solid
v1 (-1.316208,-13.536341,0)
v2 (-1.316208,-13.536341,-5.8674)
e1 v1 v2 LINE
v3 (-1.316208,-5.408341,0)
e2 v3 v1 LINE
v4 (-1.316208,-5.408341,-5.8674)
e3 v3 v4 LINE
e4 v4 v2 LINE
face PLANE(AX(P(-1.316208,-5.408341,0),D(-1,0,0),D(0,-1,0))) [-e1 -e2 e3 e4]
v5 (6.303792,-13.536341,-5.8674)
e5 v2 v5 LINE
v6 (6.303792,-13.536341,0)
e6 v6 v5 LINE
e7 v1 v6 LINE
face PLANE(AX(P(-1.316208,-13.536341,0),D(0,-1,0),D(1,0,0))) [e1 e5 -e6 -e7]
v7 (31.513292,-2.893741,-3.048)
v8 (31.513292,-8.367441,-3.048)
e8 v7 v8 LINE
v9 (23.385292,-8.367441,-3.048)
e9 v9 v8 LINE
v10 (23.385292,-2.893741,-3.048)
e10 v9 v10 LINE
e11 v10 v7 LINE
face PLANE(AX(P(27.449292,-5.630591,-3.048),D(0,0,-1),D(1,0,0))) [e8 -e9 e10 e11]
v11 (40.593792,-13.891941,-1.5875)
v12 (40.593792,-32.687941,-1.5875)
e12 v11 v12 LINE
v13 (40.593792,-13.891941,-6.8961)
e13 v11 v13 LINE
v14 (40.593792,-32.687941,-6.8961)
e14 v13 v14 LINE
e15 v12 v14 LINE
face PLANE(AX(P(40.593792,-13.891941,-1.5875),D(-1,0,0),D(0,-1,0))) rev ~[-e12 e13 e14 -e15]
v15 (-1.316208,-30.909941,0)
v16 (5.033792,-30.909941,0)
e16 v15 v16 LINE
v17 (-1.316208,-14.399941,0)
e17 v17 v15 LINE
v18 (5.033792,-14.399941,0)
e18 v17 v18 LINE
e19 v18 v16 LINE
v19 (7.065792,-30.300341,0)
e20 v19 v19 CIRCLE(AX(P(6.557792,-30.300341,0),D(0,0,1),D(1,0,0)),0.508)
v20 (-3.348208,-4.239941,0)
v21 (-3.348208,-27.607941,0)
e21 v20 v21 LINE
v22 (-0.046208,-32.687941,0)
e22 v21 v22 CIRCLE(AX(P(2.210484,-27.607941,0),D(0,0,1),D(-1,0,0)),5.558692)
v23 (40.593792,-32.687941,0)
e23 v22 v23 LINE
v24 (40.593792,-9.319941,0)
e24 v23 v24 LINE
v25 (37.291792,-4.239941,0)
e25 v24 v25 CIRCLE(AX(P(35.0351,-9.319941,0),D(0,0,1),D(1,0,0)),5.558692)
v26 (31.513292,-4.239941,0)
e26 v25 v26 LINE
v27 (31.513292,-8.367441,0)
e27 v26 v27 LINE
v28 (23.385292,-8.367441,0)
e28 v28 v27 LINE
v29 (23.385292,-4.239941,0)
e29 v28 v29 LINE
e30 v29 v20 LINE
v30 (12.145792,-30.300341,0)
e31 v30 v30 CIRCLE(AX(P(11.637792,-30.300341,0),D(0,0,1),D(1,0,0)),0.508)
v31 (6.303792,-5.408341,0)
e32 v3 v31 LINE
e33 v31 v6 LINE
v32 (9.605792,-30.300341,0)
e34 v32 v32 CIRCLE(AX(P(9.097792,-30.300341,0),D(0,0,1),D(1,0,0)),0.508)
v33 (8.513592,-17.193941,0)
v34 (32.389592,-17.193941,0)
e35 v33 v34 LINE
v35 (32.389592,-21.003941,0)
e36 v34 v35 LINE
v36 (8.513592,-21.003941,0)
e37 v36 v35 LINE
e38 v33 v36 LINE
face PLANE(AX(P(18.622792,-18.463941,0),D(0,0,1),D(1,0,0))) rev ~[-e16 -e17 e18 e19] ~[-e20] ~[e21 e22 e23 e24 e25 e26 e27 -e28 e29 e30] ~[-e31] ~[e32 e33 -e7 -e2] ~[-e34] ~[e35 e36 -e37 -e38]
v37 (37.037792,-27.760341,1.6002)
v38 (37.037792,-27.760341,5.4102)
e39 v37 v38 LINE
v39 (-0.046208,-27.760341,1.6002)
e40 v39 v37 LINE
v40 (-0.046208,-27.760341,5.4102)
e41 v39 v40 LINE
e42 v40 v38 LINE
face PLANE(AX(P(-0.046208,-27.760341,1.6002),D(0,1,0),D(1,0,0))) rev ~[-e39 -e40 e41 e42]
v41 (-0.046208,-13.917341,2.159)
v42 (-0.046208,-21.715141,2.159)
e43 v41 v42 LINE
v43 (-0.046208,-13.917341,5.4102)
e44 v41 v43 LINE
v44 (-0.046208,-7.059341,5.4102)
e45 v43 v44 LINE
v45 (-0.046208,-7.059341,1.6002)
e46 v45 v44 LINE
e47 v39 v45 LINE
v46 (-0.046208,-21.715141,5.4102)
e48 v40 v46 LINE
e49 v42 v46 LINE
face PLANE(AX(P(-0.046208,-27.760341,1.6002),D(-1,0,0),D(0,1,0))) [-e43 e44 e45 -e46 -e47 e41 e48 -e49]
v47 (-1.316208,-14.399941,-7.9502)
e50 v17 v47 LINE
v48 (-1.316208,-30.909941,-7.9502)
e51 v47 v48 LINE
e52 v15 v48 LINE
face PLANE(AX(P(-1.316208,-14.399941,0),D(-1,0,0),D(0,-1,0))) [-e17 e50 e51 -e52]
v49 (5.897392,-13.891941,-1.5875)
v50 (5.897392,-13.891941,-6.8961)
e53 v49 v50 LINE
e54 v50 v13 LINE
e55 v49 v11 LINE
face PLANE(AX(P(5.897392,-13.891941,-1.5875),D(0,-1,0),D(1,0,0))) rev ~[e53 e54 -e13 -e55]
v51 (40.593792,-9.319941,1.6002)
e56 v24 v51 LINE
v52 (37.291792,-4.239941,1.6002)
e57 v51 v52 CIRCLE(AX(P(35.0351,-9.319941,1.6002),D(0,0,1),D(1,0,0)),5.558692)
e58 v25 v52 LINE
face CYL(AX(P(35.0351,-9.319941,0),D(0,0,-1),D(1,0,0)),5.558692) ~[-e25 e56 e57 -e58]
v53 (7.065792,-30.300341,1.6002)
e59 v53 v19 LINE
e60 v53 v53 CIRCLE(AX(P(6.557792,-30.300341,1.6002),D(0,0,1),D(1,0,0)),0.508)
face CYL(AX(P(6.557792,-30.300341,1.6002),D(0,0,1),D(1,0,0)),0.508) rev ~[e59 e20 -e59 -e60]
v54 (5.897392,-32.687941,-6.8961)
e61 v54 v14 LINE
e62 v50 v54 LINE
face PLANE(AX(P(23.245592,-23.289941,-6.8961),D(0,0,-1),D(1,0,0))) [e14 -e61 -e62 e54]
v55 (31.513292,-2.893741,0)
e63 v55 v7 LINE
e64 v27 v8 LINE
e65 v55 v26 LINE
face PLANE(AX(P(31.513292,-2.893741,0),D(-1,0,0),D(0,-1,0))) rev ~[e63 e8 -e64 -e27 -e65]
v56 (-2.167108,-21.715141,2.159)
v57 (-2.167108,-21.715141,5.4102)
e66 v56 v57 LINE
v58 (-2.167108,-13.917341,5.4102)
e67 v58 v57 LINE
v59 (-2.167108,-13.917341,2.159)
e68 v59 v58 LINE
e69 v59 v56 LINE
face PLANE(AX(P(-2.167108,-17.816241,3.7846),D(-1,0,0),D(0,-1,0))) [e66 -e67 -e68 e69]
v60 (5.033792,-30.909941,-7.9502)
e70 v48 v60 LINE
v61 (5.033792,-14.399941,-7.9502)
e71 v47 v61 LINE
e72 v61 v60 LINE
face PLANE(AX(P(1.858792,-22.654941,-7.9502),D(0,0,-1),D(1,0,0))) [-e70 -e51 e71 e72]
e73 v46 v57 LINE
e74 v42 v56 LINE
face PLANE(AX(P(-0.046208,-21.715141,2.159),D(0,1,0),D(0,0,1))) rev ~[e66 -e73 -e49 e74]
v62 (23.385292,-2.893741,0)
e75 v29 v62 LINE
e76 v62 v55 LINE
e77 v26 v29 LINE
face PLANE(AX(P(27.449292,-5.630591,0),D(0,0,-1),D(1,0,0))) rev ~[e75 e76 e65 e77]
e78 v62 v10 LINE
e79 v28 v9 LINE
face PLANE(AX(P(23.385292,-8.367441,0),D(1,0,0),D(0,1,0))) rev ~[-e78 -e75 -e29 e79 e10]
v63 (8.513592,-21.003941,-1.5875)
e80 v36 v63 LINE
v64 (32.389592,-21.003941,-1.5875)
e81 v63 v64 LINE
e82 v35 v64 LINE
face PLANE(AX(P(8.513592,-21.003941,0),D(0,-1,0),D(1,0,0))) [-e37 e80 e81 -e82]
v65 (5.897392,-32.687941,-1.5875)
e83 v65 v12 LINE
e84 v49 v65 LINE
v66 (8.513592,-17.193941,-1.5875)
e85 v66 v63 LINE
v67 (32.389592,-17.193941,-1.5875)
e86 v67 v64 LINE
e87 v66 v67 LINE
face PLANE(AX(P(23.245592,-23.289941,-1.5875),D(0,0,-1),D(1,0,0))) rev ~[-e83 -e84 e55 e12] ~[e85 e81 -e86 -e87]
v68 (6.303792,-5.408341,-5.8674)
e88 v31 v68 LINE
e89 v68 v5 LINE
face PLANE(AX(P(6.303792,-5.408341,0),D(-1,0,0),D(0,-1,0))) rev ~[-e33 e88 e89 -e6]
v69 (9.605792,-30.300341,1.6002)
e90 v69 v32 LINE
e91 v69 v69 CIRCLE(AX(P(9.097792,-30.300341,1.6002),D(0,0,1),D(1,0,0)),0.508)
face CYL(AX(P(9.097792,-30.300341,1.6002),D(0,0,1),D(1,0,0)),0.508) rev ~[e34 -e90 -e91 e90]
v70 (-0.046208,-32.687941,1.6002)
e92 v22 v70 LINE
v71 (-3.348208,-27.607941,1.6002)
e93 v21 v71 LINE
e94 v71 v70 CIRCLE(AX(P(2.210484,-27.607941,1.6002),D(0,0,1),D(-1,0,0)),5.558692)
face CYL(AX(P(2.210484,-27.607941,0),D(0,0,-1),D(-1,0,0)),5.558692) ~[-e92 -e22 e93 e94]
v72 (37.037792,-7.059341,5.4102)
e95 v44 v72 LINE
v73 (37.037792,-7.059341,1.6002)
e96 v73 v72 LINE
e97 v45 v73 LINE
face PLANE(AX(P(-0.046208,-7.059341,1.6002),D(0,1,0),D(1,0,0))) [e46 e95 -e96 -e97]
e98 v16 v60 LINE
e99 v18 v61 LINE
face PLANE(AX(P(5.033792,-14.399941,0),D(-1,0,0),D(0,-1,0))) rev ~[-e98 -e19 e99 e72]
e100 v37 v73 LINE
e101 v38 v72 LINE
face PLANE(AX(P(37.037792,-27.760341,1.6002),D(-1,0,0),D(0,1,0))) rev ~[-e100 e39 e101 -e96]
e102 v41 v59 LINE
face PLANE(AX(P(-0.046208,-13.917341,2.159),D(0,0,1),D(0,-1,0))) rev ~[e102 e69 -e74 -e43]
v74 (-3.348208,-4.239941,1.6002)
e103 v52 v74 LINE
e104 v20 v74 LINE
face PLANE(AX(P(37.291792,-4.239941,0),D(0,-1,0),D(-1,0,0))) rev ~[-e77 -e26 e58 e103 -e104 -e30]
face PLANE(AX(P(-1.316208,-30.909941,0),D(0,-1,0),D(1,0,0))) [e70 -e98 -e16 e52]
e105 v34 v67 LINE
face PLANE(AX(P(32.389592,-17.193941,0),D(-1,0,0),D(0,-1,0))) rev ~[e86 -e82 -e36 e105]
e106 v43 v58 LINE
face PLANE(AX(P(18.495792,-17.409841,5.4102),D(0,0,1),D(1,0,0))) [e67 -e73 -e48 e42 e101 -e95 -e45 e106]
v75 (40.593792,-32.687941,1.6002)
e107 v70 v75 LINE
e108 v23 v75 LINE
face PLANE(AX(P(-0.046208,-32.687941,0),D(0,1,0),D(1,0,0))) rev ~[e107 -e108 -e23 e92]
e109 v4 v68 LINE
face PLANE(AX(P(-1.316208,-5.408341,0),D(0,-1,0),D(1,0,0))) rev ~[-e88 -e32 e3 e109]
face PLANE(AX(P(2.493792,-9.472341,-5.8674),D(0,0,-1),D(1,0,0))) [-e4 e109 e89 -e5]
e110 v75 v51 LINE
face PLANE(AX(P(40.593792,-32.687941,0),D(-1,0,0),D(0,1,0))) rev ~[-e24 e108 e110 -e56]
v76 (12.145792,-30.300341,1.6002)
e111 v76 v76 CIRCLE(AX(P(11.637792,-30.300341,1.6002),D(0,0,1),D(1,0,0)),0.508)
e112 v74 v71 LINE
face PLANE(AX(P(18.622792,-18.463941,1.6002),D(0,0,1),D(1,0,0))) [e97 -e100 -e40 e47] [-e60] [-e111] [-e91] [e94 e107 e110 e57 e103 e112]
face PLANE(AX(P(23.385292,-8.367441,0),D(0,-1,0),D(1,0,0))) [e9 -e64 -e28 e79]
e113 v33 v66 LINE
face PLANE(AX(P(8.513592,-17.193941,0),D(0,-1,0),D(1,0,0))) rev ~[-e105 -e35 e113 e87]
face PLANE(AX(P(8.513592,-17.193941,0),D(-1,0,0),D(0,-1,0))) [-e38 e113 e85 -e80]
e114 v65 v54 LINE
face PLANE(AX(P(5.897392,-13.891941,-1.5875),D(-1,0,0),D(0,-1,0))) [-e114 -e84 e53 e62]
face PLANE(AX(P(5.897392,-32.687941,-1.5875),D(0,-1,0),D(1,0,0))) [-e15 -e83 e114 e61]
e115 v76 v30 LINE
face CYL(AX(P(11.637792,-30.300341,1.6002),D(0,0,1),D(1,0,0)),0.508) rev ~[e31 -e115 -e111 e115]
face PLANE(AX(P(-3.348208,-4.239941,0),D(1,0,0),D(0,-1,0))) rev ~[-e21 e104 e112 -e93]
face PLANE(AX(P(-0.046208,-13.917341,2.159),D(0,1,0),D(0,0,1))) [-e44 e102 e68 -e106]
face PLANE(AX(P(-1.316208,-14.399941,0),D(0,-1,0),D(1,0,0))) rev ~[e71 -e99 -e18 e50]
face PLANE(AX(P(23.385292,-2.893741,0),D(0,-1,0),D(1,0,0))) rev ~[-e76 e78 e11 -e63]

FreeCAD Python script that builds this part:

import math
import FreeCAD as App
import Part
import Sketcher
from FreeCAD import Vector
Q = App.Units.Quantity

doc = App.newDocument("Part")
body = doc.addObject("PartDesign::Body", "Body")

sketch1 = doc.addObject("Sketcher::SketchObject", "Sketch")
body.addObject(sketch1)
sketch1.AttachmentSupport = (doc.XY_Plane, [""])
sketch1.MapMode = "FlatFace"
sketch1.addGeometry([
    Part.LineSegment(Vector(37, -4, 0), Vector(-3, -4, 0)),
    Part.LineSegment(Vector(-3, -4, 0), Vector(-3, -28, 0)),
    Part.ArcOfCircle(Part.Circle(Vector(2, -28, 0), Vector(0, 0, 1), 6), math.radians(-180), math.radians(-114)),
    Part.LineSegment(Vector(0, -33, 0), Vector(41, -33, 0)),
    Part.LineSegment(Vector(41, -33, 0), Vector(41, -9, 0)),
    Part.ArcOfCircle(Part.Circle(Vector(35, -9, 0), Vector(0, 0, 1), 6), math.radians(0), math.radians(66)),
], False)
sketch1.addConstraint([
    Sketcher.Constraint("Coincident", 0, 2, 1, 1),
    Sketcher.Constraint("Tangent", 1, 2, 2, 1),
    Sketcher.Constraint("Coincident", 2, 2, 3, 1),
    Sketcher.Constraint("Coincident", 3, 2, 4, 1),
    Sketcher.Constraint("Tangent", 4, 2, 5, 1),
    Sketcher.Constraint("Coincident", 5, 2, 0, 1),
    Sketcher.Constraint("Horizontal", 0),
    Sketcher.Constraint("Vertical", 1),
    Sketcher.Constraint("Horizontal", 3),
    Sketcher.Constraint("Vertical", 4),
    Sketcher.Constraint("Equal", 2, 5),
    Sketcher.Constraint("Equal", 0, 3),
    Sketcher.Constraint("DistanceX", 0, 2, 0, 1, Q("1.6 in")),
    Sketcher.Constraint("DistanceY", 1, 2, 1, 1, Q("0.92 in")),
    Sketcher.Constraint("DistanceY", 5, 3, 0, 2, Q("0.2 in")),
    Sketcher.Constraint("DistanceX", 1, 2, 2, 2, Q("0.13 in")),
    Sketcher.Constraint("DistanceX", -1, 1, 5, 3, Q("35.0351 mm")),
    Sketcher.Constraint("DistanceY", 2, 3, -1, 1, Q("27.607941 mm")),
])
pad1 = doc.addObject("PartDesign::Pad", "Pad")
body.addObject(pad1)
pad1.Profile = sketch1
pad1.Length = Q("0.063 in")

sketch2 = doc.addObject("Sketcher::SketchObject", "Sketch001")
body.addObject(sketch2)
sketch2.AttachmentSupport = (doc.XY_Plane, [""])
sketch2.MapMode = "FlatFace"
sketch2.AttachmentOffset = App.Placement(Vector(0, 0, 0.063 * 25.4), App.Rotation())
sketch2.addGeometry([
    Part.LineSegment(Vector(0, -7, 0), Vector(0, -28, 0)),
    Part.LineSegment(Vector(0, -28, 0), Vector(37, -28, 0)),
    Part.LineSegment(Vector(37, -28, 0), Vector(37, -7, 0)),
    Part.LineSegment(Vector(37, -7, 0), Vector(0, -7, 0)),
], False)
sketch2.addConstraint([
    Sketcher.Constraint("Coincident", 0, 2, 1, 1),
    Sketcher.Constraint("Coincident", 1, 2, 2, 1),
    Sketcher.Constraint("Coincident", 2, 2, 3, 1),
    Sketcher.Constraint("Coincident", 3, 2, 0, 1),
    Sketcher.Constraint("Vertical", 0),
    Sketcher.Constraint("Horizontal", 1),
    Sketcher.Constraint("Vertical", 2),
    Sketcher.Constraint("Horizontal", 3),
    Sketcher.Constraint("DistanceX", 1, 1, 1, 2, Q("1.46 in")),
    Sketcher.Constraint("DistanceY", 0, 2, 0, 1, Q("0.815 in")),
    Sketcher.Constraint("DistanceY", 0, 2, -1, 1, Q("27.760341 mm")),
    Sketcher.Constraint("DistanceX", 0, 2, -1, 1, Q("0.046208 mm")),
])
pad2 = doc.addObject("PartDesign::Pad", "Pad001")
body.addObject(pad2)
pad2.Profile = sketch2
pad2.Length = Q("0.15 in")

sketch3 = doc.addObject("Sketcher::SketchObject", "Sketch002")
body.addObject(sketch3)
sketch3.AttachmentSupport = (doc.YZ_Plane, [""])
sketch3.MapMode = "FlatFace"
sketch3.AttachmentOffset = App.Placement(Vector(0, 0, -0.046208), App.Rotation())
sketch3.addGeometry([
    Part.LineSegment(Vector(-13.9, 5.4, 0), Vector(-13.9, 2.2, 0)),
    Part.LineSegment(Vector(-13.9, 2.2, 0), Vector(-21.7, 2.2, 0)),
    Part.LineSegment(Vector(-21.7, 2.2, 0), Vector(-21.7, 5.4, 0)),
    Part.LineSegment(Vector(-21.7, 5.4, 0), Vector(-13.9, 5.4, 0)),
], False)
sketch3.addConstraint([
    Sketcher.Constraint("Coincident", 0, 2, 1, 1),
    Sketcher.Constraint("Coincident", 1, 2, 2, 1),
    Sketcher.Constraint("Coincident", 2, 2, 3, 1),
    Sketcher.Constraint("Coincident", 3, 2, 0, 1),
    Sketcher.Constraint("Vertical", 0),
    Sketcher.Constraint("Horizontal", 1),
    Sketcher.Constraint("Vertical", 2),
    Sketcher.Constraint("Horizontal", 3),
    Sketcher.Constraint("DistanceX", 1, 2, 1, 1, Q("0.307 in")),
    Sketcher.Constraint("DistanceY", 0, 2, 0, 1, Q("0.128 in")),
    Sketcher.Constraint("DistanceY", -1, 1, 0, 2, Q("0.085 in")),
    Sketcher.Constraint("DistanceX", 0, 2, -1, 1, Q("13.917341 mm")),
])
pad3 = doc.addObject("PartDesign::Pad", "Pad002")
body.addObject(pad3)
pad3.Profile = sketch3
pad3.Length = Q("0.0835 in")
pad3.Reversed = True

sketch4 = doc.addObject("Sketcher::SketchObject", "Sketch003")
body.addObject(sketch4)
sketch4.AttachmentSupport = (doc.XY_Plane, [""])
sketch4.MapMode = "FlatFace"
sketch4.AttachmentOffset = App.Placement(Vector(0, 0, 0.063 * 25.4), App.Rotation())
sketch4.addGeometry([
    Part.Circle(Vector(6.6, -30.3, 0), Vector(0, 0, 1), 0.5),
    Part.Circle(Vector(9.1, -30.3, 0), Vector(0, 0, 1), 0.5),
    Part.Circle(Vector(11.6, -30.3, 0), Vector(0, 0, 1), 0.5),
], False)
sketch4.addConstraint([
    Sketcher.Constraint("Equal", 0, 1),
    Sketcher.Constraint("Equal", 1, 2),
    Sketcher.Constraint("Horizontal", 0, 3, 1, 3),
    Sketcher.Constraint("Horizontal", 1, 3, 2, 3),
    Sketcher.Constraint("Diameter", 0, Q("0.04 in")),
    Sketcher.Constraint("DistanceX", 0, 3, 1, 3, Q("0.1 in")),
    Sketcher.Constraint("DistanceX", 1, 3, 2, 3, Q("0.1 in")),
    Sketcher.Constraint("DistanceY", 0, 3, -1, 1, Q("30.300341 mm")),
    Sketcher.Constraint("DistanceX", -1, 1, 0, 3, Q("6.557792 mm")),
])
pocket1 = doc.addObject("PartDesign::Pocket", "Pocket")
body.addObject(pocket1)
pocket1.Profile = sketch4
pocket1.Length = Q("1 in")

sketch5 = doc.addObject("Sketcher::SketchObject", "Sketch004")
body.addObject(sketch5)
sketch5.AttachmentSupport = (doc.XY_Plane, [""])
sketch5.MapMode = "FlatFace"
sketch5.addGeometry([
    Part.LineSegment(Vector(-1, -31, 0), Vector(-1, -14, 0)),
    Part.LineSegment(Vector(-1, -14, 0), Vector(5, -14, 0)),
    Part.LineSegment(Vector(5, -14, 0), Vector(5, -31, 0)),
    Part.LineSegment(Vector(5, -31, 0), Vector(-1, -31, 0)),
], False)
sketch5.addConstraint([
    Sketcher.Constraint("Coincident", 0, 2, 1, 1),
    Sketcher.Constraint("Coincident", 1, 2, 2, 1),
    Sketcher.Constraint("Coincident", 2, 2, 3, 1),
    Sketcher.Constraint("Coincident", 3, 2, 0, 1),
    Sketcher.Constraint("Vertical", 0),
    Sketcher.Constraint("Horizontal", 1),
    Sketcher.Constraint("Vertical", 2),
    Sketcher.Constraint("Horizontal", 3),
    Sketcher.Constraint("DistanceX", 1, 1, 1, 2, Q("0.25 in")),
    Sketcher.Constraint("DistanceY", 0, 1, 0, 2, Q("0.65 in")),
    Sketcher.Constraint("DistanceY", 0, 2, -1, 1, Q("14.399941 mm")),
    Sketcher.Constraint("DistanceX", 0, 2, -1, 1, Q("1.316208 mm")),
])
pad4 = doc.addObject("PartDesign::Pad", "Pad003")
body.addObject(pad4)
pad4.Profile = sketch5
pad4.Length = Q("0.313 in")
pad4.Reversed = True

sketch6 = doc.addObject("Sketcher::SketchObject", "Sketch005")
body.addObject(sketch6)
sketch6.AttachmentSupport = (doc.XY_Plane, [""])
sketch6.MapMode = "FlatFace"
sketch6.addGeometry([
    Part.LineSegment(Vector(-1, -14, 0), Vector(-1, -5, 0)),
    Part.LineSegment(Vector(-1, -5, 0), Vector(6, -5, 0)),
    Part.LineSegment(Vector(6, -5, 0), Vector(6, -14, 0)),
    Part.LineSegment(Vector(6, -14, 0), Vector(-1, -14, 0)),
], False)
sketch6.addConstraint([
    Sketcher.Constraint("Coincident", 0, 2, 1, 1),
    Sketcher.Constraint("Coincident", 1, 2, 2, 1),
    Sketcher.Constraint("Coincident", 2, 2, 3, 1),
    Sketcher.Constraint("Coincident", 3, 2, 0, 1),
    Sketcher.Constraint("Vertical", 0),
    Sketcher.Constraint("Horizontal", 1),
    Sketcher.Constraint("Vertical", 2),
    Sketcher.Constraint("Horizontal", 3),
    Sketcher.Constraint("DistanceX", 1, 1, 1, 2, Q("0.3 in")),
    Sketcher.Constraint("DistanceY", 0, 1, 0, 2, Q("0.32 in")),
    Sketcher.Constraint("DistanceY", 0, 2, -1, 1, Q("5.408341 mm")),
    Sketcher.Constraint("DistanceX", 0, 2, -1, 1, Q("1.316208 mm")),
])
pad5 = doc.addObject("PartDesign::Pad", "Pad004")
body.addObject(pad5)
pad5.Profile = sketch6
pad5.Length = Q("0.231 in")
pad5.Reversed = True

sketch7 = doc.addObject("Sketcher::SketchObject", "Sketch006")
body.addObject(sketch7)
sketch7.AttachmentSupport = (doc.XY_Plane, [""])
sketch7.MapMode = "FlatFace"
sketch7.addGeometry([
    Part.LineSegment(Vector(8.5, -21, 0), Vector(8.5, -17.2, 0)),
    Part.LineSegment(Vector(8.5, -17.2, 0), Vector(32.4, -17.2, 0)),
    Part.LineSegment(Vector(32.4, -17.2, 0), Vector(32.4, -21, 0)),
    Part.LineSegment(Vector(32.4, -21, 0), Vector(8.5, -21, 0)),
], False)
sketch7.addConstraint([
    Sketcher.Constraint("Coincident", 0, 2, 1, 1),
    Sketcher.Constraint("Coincident", 1, 2, 2, 1),
    Sketcher.Constraint("Coincident", 2, 2, 3, 1),
    Sketcher.Constraint("Coincident", 3, 2, 0, 1),
    Sketcher.Constraint("Vertical", 0),
    Sketcher.Constraint("Horizontal", 1),
    Sketcher.Constraint("Vertical", 2),
    Sketcher.Constraint("Horizontal", 3),
    Sketcher.Constraint("DistanceX", 1, 1, 1, 2, Q("0.94 in")),
    Sketcher.Constraint("DistanceY", 0, 1, 0, 2, Q("0.15 in")),
    Sketcher.Constraint("DistanceY", 0, 2, -1, 1, Q("17.193941 mm")),
    Sketcher.Constraint("DistanceX", -1, 1, 0, 2, Q("8.513592 mm")),
])
pad6 = doc.addObject("PartDesign::Pad", "Pad005")
body.addObject(pad6)
pad6.Profile = sketch7
pad6.Length = Q("0.0625 in")
pad6.Reversed = True

sketch8 = doc.addObject("Sketcher::SketchObject", "Sketch007")
body.addObject(sketch8)
sketch8.AttachmentSupport = (doc.XY_Plane, [""])
sketch8.MapMode = "FlatFace"
sketch8.addGeometry([
    Part.LineSegment(Vector(23, -3, 0), Vector(32, -3, 0)),
    Part.LineSegment(Vector(32, -3, 0), Vector(32, -8, 0)),
    Part.LineSegment(Vector(32, -8, 0), Vector(23, -8, 0)),
    Part.LineSegment(Vector(23, -8, 0), Vector(23, -3, 0)),
], False)
sketch8.addConstraint([
    Sketcher.Constraint("Coincident", 0, 2, 1, 1),
    Sketcher.Constraint("Coincident", 1, 2, 2, 1),
    Sketcher.Constraint("Coincident", 2, 2, 3, 1),
    Sketcher.Constraint("Coincident", 3, 2, 0, 1),
    Sketcher.Constraint("Horizontal", 0),
    Sketcher.Constraint("Vertical", 1),
    Sketcher.Constraint("Horizontal", 2),
    Sketcher.Constraint("Vertical", 3),
    Sketcher.Constraint("DistanceX", 0, 1, 0, 2, Q("0.32 in")),
    Sketcher.Constraint("DistanceY", 1, 2, 1, 1, Q("0.2155 in")),
    Sketcher.Constraint("DistanceY", 0, 2, -1, 1, Q("2.893741 mm")),
    Sketcher.Constraint("DistanceX", -1, 1, 0, 2, Q("31.513292 mm")),
])
pad7 = doc.addObject("PartDesign::Pad", "Pad006")
body.addObject(pad7)
pad7.Profile = sketch8
pad7.Length = Q("0.12 in")
pad7.Reversed = True

sketch9 = doc.addObject("Sketcher::SketchObject", "Sketch008")
body.addObject(sketch9)
sketch9.AttachmentSupport = (doc.XY_Plane, [""])
sketch9.MapMode = "FlatFace"
sketch9.AttachmentOffset = App.Placement(Vector(0, 0, -0.0625 * 25.4), App.Rotation())
sketch9.addGeometry([
    Part.LineSegment(Vector(6, -33, 0), Vector(6, -14, 0)),
    Part.LineSegment(Vector(6, -14, 0), Vector(41, -14, 0)),
    Part.LineSegment(Vector(41, -14, 0), Vector(41, -33, 0)),
    Part.LineSegment(Vector(41, -33, 0), Vector(6, -33, 0)),
], False)
sketch9.addConstraint([
    Sketcher.Constraint("Coincident", 0, 2, 1, 1),
    Sketcher.Constraint("Coincident", 1, 2, 2, 1),
    Sketcher.Constraint("Coincident", 2, 2, 3, 1),
    Sketcher.Constraint("Coincident", 3, 2, 0, 1),
    Sketcher.Constraint("Vertical", 0),
    Sketcher.Constraint("Horizontal", 1),
    Sketcher.Constraint("Vertical", 2),
    Sketcher.Constraint("Horizontal", 3),
    Sketcher.Constraint("DistanceY", 0, 1, 0, 2, Q("0.74 in")),
    Sketcher.Constraint("DistanceX", 1, 1, 1, 2, Q("1.366 in")),
    Sketcher.Constraint("DistanceY", 0, 2, -1, 1, Q("13.891941 mm")),
    Sketcher.Constraint("DistanceX", -1, 1, 0, 2, Q("5.897392 mm")),
])
pad8 = doc.addObject("PartDesign::Pad", "Pad007")
body.addObject(pad8)
pad8.Profile = sketch9
pad8.Length = Q("0.209 in")
pad8.Reversed = True

doc.recompute()
